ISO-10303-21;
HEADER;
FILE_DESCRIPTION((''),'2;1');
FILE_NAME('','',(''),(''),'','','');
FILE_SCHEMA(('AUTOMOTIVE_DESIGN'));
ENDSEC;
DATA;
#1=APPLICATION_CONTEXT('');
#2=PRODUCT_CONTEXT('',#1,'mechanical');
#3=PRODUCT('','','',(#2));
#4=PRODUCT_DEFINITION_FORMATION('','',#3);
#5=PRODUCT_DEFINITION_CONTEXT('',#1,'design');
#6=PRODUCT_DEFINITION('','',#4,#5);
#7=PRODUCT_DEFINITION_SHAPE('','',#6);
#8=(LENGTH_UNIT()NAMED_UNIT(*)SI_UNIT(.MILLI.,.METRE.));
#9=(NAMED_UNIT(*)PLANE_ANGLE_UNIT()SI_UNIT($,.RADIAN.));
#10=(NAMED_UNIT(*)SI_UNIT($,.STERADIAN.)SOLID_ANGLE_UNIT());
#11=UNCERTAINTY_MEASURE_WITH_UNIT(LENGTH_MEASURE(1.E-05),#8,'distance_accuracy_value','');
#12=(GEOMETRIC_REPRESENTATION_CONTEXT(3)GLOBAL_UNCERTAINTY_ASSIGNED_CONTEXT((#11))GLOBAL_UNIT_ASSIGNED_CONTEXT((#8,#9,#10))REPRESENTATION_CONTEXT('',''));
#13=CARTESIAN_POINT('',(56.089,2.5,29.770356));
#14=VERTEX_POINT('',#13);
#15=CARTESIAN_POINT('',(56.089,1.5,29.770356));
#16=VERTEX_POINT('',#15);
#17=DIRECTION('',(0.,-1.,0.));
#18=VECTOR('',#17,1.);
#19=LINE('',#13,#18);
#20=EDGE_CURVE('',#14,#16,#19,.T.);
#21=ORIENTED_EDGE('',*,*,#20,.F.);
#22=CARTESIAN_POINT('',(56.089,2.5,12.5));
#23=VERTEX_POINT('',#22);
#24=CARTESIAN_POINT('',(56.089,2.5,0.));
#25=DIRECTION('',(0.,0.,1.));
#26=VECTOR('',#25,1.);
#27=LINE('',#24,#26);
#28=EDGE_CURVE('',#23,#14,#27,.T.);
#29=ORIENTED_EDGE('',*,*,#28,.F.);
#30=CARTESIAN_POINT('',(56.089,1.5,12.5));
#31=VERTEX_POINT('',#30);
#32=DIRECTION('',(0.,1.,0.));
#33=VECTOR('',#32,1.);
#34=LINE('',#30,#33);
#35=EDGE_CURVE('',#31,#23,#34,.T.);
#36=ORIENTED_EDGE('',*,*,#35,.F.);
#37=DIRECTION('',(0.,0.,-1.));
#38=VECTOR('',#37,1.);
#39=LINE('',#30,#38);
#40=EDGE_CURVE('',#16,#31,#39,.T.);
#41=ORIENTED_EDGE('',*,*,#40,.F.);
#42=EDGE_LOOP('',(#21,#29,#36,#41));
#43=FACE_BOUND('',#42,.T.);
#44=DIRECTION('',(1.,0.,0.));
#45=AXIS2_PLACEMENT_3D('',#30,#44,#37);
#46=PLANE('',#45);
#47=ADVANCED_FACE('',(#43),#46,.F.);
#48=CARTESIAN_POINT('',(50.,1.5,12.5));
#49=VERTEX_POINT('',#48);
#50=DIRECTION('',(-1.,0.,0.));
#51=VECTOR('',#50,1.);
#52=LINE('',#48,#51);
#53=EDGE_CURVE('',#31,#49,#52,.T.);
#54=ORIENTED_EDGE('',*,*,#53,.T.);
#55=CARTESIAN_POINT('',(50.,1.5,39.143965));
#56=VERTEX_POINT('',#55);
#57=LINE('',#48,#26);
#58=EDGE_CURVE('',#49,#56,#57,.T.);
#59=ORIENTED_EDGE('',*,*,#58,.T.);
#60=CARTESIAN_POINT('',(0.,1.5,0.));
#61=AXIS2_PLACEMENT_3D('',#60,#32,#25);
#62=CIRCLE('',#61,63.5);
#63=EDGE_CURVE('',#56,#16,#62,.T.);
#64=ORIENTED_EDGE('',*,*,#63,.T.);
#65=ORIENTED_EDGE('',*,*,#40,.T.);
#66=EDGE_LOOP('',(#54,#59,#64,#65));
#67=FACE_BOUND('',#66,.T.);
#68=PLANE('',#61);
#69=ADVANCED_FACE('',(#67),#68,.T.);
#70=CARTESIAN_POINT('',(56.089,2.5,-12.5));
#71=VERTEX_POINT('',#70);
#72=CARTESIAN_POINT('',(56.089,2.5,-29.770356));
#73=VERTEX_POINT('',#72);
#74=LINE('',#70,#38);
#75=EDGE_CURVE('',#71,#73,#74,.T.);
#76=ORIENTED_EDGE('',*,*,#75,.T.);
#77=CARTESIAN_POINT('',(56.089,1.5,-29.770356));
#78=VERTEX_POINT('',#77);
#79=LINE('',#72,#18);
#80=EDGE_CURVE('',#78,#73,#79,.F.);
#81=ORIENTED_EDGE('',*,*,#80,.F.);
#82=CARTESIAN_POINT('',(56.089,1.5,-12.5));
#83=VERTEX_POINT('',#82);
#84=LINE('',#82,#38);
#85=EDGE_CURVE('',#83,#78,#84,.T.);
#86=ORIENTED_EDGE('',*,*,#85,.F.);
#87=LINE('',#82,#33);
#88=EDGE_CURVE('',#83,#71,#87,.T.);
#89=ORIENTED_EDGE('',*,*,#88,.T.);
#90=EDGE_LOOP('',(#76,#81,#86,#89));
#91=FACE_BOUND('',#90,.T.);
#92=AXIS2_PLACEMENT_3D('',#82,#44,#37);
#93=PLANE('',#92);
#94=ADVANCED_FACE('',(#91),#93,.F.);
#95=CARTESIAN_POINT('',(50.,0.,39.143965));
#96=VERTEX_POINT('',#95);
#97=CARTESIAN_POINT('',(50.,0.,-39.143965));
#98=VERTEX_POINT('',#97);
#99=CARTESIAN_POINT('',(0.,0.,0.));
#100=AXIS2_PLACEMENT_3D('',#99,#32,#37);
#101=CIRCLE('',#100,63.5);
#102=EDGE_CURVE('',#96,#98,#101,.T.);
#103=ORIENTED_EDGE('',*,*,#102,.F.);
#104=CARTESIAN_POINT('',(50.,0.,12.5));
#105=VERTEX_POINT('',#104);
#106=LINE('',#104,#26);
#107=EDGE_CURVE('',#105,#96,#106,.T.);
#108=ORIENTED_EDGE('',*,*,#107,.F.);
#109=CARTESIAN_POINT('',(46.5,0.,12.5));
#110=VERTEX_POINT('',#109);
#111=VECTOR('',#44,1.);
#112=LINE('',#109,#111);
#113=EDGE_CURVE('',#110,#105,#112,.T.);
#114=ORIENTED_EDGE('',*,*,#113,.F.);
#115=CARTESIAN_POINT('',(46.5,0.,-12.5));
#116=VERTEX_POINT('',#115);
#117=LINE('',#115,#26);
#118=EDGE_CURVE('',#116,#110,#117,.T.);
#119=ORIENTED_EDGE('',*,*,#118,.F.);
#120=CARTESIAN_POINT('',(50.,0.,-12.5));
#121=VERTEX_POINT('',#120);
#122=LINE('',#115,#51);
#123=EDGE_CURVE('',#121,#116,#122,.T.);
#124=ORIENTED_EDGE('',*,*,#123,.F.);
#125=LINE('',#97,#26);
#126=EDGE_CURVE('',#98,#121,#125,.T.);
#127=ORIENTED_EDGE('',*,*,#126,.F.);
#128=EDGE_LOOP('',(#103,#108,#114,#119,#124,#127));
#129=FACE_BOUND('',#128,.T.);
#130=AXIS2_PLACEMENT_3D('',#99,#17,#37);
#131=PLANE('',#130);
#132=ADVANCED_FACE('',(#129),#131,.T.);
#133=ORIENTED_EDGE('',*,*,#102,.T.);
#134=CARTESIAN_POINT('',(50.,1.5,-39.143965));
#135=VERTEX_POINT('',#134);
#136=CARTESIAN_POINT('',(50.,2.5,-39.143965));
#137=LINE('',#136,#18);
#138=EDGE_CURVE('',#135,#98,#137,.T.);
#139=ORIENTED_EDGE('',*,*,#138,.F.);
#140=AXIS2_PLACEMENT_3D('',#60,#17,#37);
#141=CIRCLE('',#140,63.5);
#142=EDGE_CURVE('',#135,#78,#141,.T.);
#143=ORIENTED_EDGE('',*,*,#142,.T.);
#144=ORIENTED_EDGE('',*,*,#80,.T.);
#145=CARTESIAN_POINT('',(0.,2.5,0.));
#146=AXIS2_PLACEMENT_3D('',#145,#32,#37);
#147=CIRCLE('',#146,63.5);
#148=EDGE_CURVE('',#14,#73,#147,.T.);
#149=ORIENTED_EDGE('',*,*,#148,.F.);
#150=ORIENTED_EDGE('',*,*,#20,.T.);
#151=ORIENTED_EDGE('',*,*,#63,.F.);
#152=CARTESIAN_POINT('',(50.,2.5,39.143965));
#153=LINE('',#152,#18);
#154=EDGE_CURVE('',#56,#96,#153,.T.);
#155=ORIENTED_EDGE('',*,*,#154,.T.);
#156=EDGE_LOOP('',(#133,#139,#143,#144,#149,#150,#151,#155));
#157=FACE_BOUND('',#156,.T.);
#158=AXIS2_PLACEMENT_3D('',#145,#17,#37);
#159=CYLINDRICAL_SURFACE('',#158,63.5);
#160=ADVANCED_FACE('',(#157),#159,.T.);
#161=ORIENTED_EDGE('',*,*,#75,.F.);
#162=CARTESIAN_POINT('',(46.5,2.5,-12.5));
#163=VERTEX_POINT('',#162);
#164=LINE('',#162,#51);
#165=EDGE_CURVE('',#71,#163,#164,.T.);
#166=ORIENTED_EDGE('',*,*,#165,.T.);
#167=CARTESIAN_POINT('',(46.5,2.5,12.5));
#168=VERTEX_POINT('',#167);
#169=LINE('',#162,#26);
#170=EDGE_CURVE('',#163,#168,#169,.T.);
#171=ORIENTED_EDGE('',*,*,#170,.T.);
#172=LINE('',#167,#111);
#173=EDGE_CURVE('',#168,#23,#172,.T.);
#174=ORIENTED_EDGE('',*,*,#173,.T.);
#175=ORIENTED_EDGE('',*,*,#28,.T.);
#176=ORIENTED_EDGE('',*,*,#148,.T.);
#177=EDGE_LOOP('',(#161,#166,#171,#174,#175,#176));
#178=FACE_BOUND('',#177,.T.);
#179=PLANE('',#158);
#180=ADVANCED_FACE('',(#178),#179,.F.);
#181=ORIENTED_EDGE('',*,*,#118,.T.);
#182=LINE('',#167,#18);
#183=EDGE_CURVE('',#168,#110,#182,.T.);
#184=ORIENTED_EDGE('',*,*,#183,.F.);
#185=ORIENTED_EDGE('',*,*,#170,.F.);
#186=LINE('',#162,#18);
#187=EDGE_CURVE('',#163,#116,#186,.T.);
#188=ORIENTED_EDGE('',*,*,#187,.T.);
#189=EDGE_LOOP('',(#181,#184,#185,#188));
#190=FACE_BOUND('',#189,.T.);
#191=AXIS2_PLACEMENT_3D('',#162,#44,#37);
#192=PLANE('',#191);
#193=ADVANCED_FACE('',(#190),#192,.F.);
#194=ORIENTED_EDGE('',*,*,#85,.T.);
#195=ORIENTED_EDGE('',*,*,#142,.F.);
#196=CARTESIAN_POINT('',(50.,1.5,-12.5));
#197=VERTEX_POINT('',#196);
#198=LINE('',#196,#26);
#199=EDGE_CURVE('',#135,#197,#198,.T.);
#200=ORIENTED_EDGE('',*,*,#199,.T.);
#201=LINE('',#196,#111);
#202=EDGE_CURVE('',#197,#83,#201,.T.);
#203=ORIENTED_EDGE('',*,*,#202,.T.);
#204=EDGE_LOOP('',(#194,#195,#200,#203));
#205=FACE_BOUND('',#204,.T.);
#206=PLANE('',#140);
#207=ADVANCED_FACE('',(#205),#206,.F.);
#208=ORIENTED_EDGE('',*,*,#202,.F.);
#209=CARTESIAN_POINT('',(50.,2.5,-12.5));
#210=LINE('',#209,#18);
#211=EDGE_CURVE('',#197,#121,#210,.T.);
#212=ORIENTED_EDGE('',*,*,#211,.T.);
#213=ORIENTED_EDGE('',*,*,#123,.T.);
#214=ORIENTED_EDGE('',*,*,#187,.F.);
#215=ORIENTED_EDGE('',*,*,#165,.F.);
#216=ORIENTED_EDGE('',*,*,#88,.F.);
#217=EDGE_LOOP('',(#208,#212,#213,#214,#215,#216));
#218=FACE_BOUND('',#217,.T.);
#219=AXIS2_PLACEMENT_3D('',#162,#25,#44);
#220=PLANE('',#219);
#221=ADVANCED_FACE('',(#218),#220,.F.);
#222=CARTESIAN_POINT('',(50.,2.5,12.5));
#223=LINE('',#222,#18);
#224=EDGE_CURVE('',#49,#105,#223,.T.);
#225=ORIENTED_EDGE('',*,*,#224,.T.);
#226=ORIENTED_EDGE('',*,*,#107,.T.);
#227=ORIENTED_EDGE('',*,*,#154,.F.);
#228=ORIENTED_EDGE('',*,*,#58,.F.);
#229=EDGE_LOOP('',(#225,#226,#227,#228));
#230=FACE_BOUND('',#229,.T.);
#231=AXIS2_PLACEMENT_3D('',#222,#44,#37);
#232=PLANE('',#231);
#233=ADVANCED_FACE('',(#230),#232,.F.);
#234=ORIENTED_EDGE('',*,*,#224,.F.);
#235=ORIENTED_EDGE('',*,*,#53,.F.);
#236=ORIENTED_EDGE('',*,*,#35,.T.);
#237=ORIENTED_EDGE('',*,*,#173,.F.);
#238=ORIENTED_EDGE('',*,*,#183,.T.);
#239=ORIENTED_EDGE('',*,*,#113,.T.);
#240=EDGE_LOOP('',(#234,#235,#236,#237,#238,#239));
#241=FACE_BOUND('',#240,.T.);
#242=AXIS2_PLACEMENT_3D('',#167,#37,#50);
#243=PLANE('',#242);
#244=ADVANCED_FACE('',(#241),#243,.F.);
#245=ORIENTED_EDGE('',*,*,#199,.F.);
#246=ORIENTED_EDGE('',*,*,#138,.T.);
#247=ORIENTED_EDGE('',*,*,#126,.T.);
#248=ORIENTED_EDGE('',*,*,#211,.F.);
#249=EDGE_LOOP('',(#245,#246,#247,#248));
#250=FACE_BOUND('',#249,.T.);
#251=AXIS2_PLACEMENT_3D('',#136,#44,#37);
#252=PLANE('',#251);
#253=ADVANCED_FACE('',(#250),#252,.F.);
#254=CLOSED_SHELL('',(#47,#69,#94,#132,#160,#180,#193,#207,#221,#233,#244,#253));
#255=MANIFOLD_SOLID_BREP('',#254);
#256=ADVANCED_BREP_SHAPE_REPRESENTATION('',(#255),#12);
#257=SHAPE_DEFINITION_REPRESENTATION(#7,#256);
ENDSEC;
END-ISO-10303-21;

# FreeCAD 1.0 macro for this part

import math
import FreeCAD as App
import Part
import Sketcher
from FreeCAD import Vector


def add_polygon(sketch, points):
    """Adds a closed chain of lines whose ends are joined by coincident constraints."""
    first, n = sketch.GeometryCount, len(points)
    for a, b in zip(points, points[1:] + points[:1]):
        sketch.addGeometry(Part.LineSegment(App.Vector(*a, 0), App.Vector(*b, 0)), False)
    for i in range(n):
        sketch.addConstraint(Sketcher.Constraint("Coincident", first + i, 2, first + (i + 1) % n, 1))

doc = App.newDocument("Part")
body = doc.addObject("PartDesign::Body", "Body")

# Sketch on XZ plane
sketch1 = doc.addObject("Sketcher::SketchObject", "Sketch")
body.addObject(sketch1)
sketch1.AttachmentSupport = (doc.XZ_Plane, [""])
sketch1.MapMode = "FlatFace"
sketch1.addGeometry(Part.LineSegment(Vector(50, 12.5, 0), Vector(50, 39.1, 0)), False)
sketch1.addGeometry(Part.ArcOfCircle(Part.Circle(Vector(0, 0, 0), Vector(0, 0, 1), 63.5), math.radians(-38), math.radians(38)), False)
sketch1.addGeometry(Part.LineSegment(Vector(50, -39.1, 0), Vector(50, -12.5, 0)), False)
sketch1.addGeometry(Part.LineSegment(Vector(50, -12.5, 0), Vector(46.5, -12.5, 0)), False)
sketch1.addGeometry(Part.LineSegment(Vector(46.5, -12.5, 0), Vector(46.5, 12.5, 0)), False)
sketch1.addGeometry(Part.LineSegment(Vector(46.5, 12.5, 0), Vector(50, 12.5, 0)), False)
sketch1.addConstraint(Sketcher.Constraint("Coincident", 0, 2, 1, 2))
sketch1.addConstraint(Sketcher.Constraint("Coincident", 1, 1, 2, 1))
sketch1.addConstraint(Sketcher.Constraint("Coincident", 2, 2, 3, 1))
sketch1.addConstraint(Sketcher.Constraint("Coincident", 3, 2, 4, 1))
sketch1.addConstraint(Sketcher.Constraint("Coincident", 4, 2, 5, 1))
sketch1.addConstraint(Sketcher.Constraint("Coincident", 5, 2, 0, 1))
sketch1.addConstraint(Sketcher.Constraint("Vertical", 0))
sketch1.addConstraint(Sketcher.Constraint("Vertical", 2))
sketch1.addConstraint(Sketcher.Constraint("Horizontal", 3))
sketch1.addConstraint(Sketcher.Constraint("Vertical", 4))
sketch1.addConstraint(Sketcher.Constraint("Horizontal", 5))
sketch1.addConstraint(Sketcher.Constraint("Coincident", 1, 3, -1, 1))
sketch1.addConstraint(Sketcher.Constraint("Symmetric", 2, 2, 5, 2, -1))
sketch1.addConstraint(Sketcher.Constraint("Radius", 1, 63.5))
sketch1.addConstraint(Sketcher.Constraint("DistanceY", 4, 1, 4, 2, 25.0))
sketch1.addConstraint(Sketcher.Constraint("DistanceX", 3, 2, 3, 1, 3.5))
sketch1.addConstraint(Sketcher.Constraint("DistanceX", -1, 1, 0, 2, 50.0))
pad1 = doc.addObject("PartDesign::Pad", "Pad")
body.addObject(pad1)
pad1.Profile = sketch1
pad1.Length = 2.5
pad1.Reversed = True

# Sketch on XZ plane
sketch2 = doc.addObject("Sketcher::SketchObject", "Sketch001")
body.addObject(sketch2)
sketch2.AttachmentSupport = (doc.XZ_Plane, [""])
sketch2.MapMode = "FlatFace"
sketch2.AttachmentOffset = App.Placement(Vector(0, 0, -2.5), App.Rotation())
add_polygon(sketch2, [(50, -42), (50, -13), (56, -13), (56, -42)])  # lines 0-3
add_polygon(sketch2, [(50, 13), (50, 42), (56, 42), (56, 13)])  # lines 4-7
sketch2.addConstraint(Sketcher.Constraint("Vertical", 0))
sketch2.addConstraint(Sketcher.Constraint("Horizontal", 1))
sketch2.addConstraint(Sketcher.Constraint("Vertical", 2))
sketch2.addConstraint(Sketcher.Constraint("Horizontal", 3))
sketch2.addConstraint(Sketcher.Constraint("Vertical", 4))
sketch2.addConstraint(Sketcher.Constraint("Horizontal", 5))
sketch2.addConstraint(Sketcher.Constraint("Vertical", 6))
sketch2.addConstraint(Sketcher.Constraint("Horizontal", 7))
sketch2.addConstraint(Sketcher.Constraint("Symmetric", 3, 2, 4, 2, -1))
sketch2.addConstraint(Sketcher.Constraint("Symmetric", 1, 2, 6, 2, -1))
sketch2.addConstraint(Sketcher.Constraint("DistanceX", -1, 1, 0, 2, 50.0))
sketch2.addConstraint(Sketcher.Constraint("DistanceY", 1, 2, 6, 2, 25.0))
sketch2.addConstraint(Sketcher.Constraint("DistanceX", 1, 1, 1, 2, 6.089))
sketch2.addConstraint(Sketcher.Constraint("DistanceY", 0, 1, 0, 2, 29.817231))
pocket1 = doc.addObject("PartDesign::Pocket", "Pocket")
body.addObject(pocket1)
pocket1.Profile = sketch2
pocket1.Length = 1
pocket1.Reversed = True

doc.recompute()
